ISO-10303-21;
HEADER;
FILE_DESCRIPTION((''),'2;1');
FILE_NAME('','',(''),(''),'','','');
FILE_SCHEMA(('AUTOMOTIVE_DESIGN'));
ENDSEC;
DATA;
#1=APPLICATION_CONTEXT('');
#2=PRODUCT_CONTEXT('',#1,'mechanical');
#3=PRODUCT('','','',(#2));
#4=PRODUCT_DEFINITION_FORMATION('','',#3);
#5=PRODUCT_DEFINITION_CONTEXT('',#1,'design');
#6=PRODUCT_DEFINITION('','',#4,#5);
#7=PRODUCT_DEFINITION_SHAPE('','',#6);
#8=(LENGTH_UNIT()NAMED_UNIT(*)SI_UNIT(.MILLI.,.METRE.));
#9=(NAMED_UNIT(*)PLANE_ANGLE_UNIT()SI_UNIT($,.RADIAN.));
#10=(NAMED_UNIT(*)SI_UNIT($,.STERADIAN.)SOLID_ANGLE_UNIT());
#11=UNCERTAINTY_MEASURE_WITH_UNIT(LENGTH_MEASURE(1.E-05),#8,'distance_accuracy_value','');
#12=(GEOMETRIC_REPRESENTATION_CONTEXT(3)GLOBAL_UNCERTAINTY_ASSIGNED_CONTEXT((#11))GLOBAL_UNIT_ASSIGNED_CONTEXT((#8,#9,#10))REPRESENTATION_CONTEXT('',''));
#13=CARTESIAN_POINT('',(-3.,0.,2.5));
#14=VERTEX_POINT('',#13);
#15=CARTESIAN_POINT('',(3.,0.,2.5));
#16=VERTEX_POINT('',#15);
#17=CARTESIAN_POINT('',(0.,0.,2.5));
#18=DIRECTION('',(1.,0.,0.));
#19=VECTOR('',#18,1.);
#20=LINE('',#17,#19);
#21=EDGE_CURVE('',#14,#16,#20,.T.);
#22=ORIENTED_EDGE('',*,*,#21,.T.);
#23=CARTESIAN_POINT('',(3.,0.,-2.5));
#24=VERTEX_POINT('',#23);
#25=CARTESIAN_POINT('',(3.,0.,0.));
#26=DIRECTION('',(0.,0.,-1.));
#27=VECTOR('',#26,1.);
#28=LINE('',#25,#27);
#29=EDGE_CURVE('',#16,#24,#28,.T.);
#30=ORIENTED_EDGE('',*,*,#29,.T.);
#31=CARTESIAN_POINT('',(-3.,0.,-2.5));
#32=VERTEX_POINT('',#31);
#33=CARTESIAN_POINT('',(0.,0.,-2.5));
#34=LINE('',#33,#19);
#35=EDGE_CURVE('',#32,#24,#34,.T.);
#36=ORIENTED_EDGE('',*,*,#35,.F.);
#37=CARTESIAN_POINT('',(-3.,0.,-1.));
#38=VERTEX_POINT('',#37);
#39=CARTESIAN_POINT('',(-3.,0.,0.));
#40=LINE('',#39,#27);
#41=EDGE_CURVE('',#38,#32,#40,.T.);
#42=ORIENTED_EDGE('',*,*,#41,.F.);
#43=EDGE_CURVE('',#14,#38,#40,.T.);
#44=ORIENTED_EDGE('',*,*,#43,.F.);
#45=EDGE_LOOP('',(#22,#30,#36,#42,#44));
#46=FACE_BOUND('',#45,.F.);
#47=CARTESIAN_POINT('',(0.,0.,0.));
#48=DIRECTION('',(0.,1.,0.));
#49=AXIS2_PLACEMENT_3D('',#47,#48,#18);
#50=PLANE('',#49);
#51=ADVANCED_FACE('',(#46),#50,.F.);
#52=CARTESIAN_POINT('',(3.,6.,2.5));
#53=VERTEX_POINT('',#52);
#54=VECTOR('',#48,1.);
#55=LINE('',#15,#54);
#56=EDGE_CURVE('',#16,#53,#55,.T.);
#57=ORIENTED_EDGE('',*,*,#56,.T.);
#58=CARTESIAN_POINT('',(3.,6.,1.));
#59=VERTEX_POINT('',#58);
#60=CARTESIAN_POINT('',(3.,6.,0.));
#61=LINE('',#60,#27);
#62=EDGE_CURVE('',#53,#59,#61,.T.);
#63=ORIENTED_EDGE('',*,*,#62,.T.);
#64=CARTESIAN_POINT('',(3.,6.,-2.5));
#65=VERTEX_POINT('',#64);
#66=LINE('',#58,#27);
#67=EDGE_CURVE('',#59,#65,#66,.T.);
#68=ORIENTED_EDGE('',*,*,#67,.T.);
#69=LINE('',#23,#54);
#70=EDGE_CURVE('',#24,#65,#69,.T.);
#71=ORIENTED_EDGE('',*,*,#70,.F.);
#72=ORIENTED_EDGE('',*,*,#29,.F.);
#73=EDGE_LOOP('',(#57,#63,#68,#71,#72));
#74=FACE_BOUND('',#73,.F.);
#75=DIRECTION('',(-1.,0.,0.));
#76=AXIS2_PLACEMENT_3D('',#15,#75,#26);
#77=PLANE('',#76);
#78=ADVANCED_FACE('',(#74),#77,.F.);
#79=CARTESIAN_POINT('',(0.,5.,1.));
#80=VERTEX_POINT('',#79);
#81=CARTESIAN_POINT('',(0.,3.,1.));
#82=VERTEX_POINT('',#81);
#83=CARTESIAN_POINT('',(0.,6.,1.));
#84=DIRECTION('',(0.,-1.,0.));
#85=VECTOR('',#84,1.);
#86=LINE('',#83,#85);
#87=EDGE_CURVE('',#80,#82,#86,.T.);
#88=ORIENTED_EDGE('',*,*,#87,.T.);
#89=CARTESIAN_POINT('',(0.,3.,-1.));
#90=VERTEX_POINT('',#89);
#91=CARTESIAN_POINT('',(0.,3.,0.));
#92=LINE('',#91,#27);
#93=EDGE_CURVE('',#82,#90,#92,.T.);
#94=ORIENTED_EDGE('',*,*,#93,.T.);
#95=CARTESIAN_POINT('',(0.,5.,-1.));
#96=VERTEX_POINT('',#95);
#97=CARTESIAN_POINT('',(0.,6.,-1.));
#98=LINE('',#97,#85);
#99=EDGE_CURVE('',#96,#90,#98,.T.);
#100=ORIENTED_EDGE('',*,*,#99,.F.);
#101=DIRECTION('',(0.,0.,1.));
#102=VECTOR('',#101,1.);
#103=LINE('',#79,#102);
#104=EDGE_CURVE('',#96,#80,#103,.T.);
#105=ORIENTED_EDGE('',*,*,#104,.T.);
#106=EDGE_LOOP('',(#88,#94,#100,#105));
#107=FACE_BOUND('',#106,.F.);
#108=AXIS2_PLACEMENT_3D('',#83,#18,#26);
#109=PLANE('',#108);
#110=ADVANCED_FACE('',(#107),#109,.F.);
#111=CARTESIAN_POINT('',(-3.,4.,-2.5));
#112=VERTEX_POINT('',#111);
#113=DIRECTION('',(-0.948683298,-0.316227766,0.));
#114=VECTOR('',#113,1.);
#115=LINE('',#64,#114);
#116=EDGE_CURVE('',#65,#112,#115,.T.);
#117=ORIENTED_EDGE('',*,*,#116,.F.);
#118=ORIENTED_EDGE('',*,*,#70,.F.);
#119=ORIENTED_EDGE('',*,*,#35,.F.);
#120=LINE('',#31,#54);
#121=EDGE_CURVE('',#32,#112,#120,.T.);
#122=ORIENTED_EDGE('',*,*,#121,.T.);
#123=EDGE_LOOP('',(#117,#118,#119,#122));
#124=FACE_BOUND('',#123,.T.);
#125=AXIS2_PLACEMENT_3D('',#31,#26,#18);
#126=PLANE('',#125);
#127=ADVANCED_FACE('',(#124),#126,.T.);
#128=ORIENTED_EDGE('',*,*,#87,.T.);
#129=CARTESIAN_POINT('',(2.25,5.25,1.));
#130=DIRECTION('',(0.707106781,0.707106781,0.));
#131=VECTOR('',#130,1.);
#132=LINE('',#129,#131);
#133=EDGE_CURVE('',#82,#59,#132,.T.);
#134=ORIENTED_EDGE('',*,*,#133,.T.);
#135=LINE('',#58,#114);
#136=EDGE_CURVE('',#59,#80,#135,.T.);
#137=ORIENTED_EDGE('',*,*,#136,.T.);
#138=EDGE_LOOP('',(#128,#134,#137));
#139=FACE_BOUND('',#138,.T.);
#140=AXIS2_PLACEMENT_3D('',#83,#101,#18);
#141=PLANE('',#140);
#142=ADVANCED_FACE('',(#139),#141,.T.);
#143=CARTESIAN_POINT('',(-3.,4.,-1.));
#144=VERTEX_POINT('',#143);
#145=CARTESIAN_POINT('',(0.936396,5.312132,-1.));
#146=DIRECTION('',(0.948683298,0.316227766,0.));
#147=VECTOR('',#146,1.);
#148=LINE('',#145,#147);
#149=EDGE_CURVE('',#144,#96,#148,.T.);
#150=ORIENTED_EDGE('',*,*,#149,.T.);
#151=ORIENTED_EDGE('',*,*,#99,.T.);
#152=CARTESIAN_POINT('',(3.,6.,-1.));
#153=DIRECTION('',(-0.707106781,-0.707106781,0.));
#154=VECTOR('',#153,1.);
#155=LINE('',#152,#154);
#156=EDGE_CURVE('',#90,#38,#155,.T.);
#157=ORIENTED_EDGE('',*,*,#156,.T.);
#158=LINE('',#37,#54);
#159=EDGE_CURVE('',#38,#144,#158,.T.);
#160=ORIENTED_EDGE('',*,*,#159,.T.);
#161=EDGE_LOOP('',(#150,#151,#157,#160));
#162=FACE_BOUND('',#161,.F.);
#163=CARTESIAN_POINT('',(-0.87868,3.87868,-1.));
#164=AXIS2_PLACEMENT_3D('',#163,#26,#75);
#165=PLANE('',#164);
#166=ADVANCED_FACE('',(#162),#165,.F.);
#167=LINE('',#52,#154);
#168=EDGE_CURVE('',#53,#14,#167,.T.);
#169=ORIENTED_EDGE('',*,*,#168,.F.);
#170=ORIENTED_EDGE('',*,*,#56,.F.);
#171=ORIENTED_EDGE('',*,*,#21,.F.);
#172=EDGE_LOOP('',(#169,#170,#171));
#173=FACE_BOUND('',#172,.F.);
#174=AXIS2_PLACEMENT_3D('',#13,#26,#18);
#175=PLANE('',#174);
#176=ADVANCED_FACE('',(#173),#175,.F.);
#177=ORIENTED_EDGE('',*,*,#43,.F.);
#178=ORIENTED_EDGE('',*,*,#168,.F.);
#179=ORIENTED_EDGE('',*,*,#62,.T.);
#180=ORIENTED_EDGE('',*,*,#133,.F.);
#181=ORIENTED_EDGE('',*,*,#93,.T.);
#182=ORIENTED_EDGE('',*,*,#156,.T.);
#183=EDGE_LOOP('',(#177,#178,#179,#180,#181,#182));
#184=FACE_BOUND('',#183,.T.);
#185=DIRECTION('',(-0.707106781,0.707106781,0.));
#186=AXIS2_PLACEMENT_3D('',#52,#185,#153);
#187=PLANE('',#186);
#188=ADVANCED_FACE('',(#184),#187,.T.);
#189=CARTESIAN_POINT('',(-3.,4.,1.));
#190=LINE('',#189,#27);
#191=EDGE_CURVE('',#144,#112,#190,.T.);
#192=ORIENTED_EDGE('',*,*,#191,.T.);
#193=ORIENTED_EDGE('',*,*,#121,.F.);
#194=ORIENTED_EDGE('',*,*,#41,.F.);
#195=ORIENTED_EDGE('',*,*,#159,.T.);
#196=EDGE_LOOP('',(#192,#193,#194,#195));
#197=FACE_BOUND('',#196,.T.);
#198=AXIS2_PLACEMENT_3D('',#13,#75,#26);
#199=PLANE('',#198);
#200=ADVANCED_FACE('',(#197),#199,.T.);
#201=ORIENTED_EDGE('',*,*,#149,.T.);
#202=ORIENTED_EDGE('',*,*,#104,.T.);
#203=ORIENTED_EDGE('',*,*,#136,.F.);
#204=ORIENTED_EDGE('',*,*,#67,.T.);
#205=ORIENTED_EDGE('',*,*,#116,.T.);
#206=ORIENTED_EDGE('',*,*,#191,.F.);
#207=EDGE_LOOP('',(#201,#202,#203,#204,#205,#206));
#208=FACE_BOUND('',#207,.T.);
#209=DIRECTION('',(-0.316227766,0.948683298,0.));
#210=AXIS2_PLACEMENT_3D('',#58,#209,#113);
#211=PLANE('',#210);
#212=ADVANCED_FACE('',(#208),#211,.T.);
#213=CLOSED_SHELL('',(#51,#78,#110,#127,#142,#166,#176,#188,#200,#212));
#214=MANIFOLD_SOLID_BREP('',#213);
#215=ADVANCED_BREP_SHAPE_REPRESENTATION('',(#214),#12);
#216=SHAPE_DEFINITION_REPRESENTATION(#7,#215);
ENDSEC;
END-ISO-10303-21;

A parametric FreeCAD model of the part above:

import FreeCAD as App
import Part
import Sketcher
from FreeCAD import Vector
Q = App.Units.Quantity


def add_polygon(sketch, points):
    """Adds a closed chain of lines whose ends are joined by coincident constraints."""
    first, n = sketch.GeometryCount, len(points)
    for a, b in zip(points, points[1:] + points[:1]):
        sketch.addGeometry(Part.LineSegment(App.Vector(*a, 0), App.Vector(*b, 0)), False)
    for i in range(n):
        sketch.addConstraint(Sketcher.Constraint("Coincident", first + i, 2, first + (i + 1) % n, 1))

doc = App.newDocument("Part")
body = doc.addObject("PartDesign::Body", "Body")

sketch1 = doc.addObject("Sketcher::SketchObject", "Sketch")
body.addObject(sketch1)
sketch1.AttachmentSupport = (doc.XZ_Plane, [""])
sketch1.MapMode = "FlatFace"
add_polygon(sketch1, [(-3, -2), (-3, 2), (3, 2), (3, -2)])
sketch1.addConstraint(Sketcher.Constraint("Vertical", 0))
sketch1.addConstraint(Sketcher.Constraint("Horizontal", 1))
sketch1.addConstraint(Sketcher.Constraint("Vertical", 2))
sketch1.addConstraint(Sketcher.Constraint("Horizontal", 3))
sketch1.addConstraint(Sketcher.Constraint("Symmetric", 0, 2, 2, 2, -1, 1))
sketch1.addConstraint(Sketcher.Constraint("DistanceX", 1, 1, 1, 2, Q("6 mm")))
sketch1.addConstraint(Sketcher.Constraint("DistanceY", 0, 1, 0, 2, Q("5 mm")))
pad1 = doc.addObject("PartDesign::Pad", "Pad")
body.addObject(pad1)
pad1.Profile = sketch1
pad1.Length = 6
pad1.Reversed = True

sketch2 = doc.addObject("Sketcher::SketchObject", "Sketch001")
body.addObject(sketch2)
sketch2.AttachmentSupport = (doc.XY_Plane, [""])
sketch2.MapMode = "FlatFace"
sketch2.AttachmentOffset = App.Placement(Vector(0, 0, 2.5), App.Rotation())
add_polygon(sketch2, [(-3, 0), (3, 6), (-3, 6)])
sketch2.addConstraint(Sketcher.Constraint("Horizontal", 1))
sketch2.addConstraint(Sketcher.Constraint("Vertical", 2))
sketch2.addConstraint(Sketcher.Constraint("PointOnObject", 2, 2, -1))
sketch2.addConstraint(Sketcher.Constraint("Equal", 1, 2))
sketch2.addConstraint(Sketcher.Constraint("DistanceX", 1, 2, 1, 1, Q("6 mm")))
sketch2.addConstraint(Sketcher.Constraint("DistanceX", -1, 1, 0, 2, Q("3 mm")))
pocket1 = doc.addObject("PartDesign::Pocket", "Pocket")
body.addObject(pocket1)
pocket1.Profile = sketch2
pocket1.Length = 3.5

sketch3 = doc.addObject("Sketcher::SketchObject", "Sketch002")
body.addObject(sketch3)
sketch3.AttachmentSupport = (doc.XZ_Plane, [""])
sketch3.MapMode = "FlatFace"
sketch3.AttachmentOffset = App.Placement(Vector(0, 0, -6), App.Rotation())
add_polygon(sketch3, [(0, -1), (0, 1), (3, 1), (3, -1)])
sketch3.addConstraint(Sketcher.Constraint("Vertical", 0))
sketch3.addConstraint(Sketcher.Constraint("Horizontal", 1))
sketch3.addConstraint(Sketcher.Constraint("Vertical", 2))
sketch3.addConstraint(Sketcher.Constraint("Horizontal", 3))
sketch3.addConstraint(Sketcher.Constraint("Symmetric", 0, 2, 3, 2, -1, 1))
sketch3.addConstraint(Sketcher.Constraint("DistanceX", 1, 1, 1, 2, Q("3 mm")))
sketch3.addConstraint(Sketcher.Constraint("DistanceY", 0, 1, 0, 2, Q("2 mm")))
pad2 = doc.addObject("PartDesign::Pad", "Pad001")
body.addObject(pad2)
pad2.Profile = sketch3
pad2.Length = 3

sketch4 = doc.addObject("Sketcher::SketchObject", "Sketch003")
body.addObject(sketch4)
sketch4.AttachmentSupport = (doc.XY_Plane, [""])
sketch4.MapMode = "FlatFace"
sketch4.AttachmentOffset = App.Placement(Vector(0, 0, 1), App.Rotation())
add_polygon(sketch4, [(-3, 4), (3, 6), (-3, 6)])
sketch4.addConstraint(Sketcher.Constraint("Horizontal", 1))
sketch4.addConstraint(Sketcher.Constraint("Vertical", 2))
sketch4.addConstraint(Sketcher.Constraint("DistanceX", 1, 2, 1, 1, Q("6 mm")))
sketch4.addConstraint(Sketcher.Constraint("DistanceY", 2, 2, 2, 1, Q("2 mm")))
sketch4.addConstraint(Sketcher.Constraint("DistanceX", -1, 1, 0, 2, Q("3 mm")))
sketch4.addConstraint(Sketcher.Constraint("DistanceY", -1, 1, 0, 2, Q("6 mm")))
pocket2 = doc.addObject("PartDesign::Pocket", "Pocket001")
body.addObject(pocket2)
pocket2.Profile = sketch4
pocket2.Length = 3.5

doc.recompute()
